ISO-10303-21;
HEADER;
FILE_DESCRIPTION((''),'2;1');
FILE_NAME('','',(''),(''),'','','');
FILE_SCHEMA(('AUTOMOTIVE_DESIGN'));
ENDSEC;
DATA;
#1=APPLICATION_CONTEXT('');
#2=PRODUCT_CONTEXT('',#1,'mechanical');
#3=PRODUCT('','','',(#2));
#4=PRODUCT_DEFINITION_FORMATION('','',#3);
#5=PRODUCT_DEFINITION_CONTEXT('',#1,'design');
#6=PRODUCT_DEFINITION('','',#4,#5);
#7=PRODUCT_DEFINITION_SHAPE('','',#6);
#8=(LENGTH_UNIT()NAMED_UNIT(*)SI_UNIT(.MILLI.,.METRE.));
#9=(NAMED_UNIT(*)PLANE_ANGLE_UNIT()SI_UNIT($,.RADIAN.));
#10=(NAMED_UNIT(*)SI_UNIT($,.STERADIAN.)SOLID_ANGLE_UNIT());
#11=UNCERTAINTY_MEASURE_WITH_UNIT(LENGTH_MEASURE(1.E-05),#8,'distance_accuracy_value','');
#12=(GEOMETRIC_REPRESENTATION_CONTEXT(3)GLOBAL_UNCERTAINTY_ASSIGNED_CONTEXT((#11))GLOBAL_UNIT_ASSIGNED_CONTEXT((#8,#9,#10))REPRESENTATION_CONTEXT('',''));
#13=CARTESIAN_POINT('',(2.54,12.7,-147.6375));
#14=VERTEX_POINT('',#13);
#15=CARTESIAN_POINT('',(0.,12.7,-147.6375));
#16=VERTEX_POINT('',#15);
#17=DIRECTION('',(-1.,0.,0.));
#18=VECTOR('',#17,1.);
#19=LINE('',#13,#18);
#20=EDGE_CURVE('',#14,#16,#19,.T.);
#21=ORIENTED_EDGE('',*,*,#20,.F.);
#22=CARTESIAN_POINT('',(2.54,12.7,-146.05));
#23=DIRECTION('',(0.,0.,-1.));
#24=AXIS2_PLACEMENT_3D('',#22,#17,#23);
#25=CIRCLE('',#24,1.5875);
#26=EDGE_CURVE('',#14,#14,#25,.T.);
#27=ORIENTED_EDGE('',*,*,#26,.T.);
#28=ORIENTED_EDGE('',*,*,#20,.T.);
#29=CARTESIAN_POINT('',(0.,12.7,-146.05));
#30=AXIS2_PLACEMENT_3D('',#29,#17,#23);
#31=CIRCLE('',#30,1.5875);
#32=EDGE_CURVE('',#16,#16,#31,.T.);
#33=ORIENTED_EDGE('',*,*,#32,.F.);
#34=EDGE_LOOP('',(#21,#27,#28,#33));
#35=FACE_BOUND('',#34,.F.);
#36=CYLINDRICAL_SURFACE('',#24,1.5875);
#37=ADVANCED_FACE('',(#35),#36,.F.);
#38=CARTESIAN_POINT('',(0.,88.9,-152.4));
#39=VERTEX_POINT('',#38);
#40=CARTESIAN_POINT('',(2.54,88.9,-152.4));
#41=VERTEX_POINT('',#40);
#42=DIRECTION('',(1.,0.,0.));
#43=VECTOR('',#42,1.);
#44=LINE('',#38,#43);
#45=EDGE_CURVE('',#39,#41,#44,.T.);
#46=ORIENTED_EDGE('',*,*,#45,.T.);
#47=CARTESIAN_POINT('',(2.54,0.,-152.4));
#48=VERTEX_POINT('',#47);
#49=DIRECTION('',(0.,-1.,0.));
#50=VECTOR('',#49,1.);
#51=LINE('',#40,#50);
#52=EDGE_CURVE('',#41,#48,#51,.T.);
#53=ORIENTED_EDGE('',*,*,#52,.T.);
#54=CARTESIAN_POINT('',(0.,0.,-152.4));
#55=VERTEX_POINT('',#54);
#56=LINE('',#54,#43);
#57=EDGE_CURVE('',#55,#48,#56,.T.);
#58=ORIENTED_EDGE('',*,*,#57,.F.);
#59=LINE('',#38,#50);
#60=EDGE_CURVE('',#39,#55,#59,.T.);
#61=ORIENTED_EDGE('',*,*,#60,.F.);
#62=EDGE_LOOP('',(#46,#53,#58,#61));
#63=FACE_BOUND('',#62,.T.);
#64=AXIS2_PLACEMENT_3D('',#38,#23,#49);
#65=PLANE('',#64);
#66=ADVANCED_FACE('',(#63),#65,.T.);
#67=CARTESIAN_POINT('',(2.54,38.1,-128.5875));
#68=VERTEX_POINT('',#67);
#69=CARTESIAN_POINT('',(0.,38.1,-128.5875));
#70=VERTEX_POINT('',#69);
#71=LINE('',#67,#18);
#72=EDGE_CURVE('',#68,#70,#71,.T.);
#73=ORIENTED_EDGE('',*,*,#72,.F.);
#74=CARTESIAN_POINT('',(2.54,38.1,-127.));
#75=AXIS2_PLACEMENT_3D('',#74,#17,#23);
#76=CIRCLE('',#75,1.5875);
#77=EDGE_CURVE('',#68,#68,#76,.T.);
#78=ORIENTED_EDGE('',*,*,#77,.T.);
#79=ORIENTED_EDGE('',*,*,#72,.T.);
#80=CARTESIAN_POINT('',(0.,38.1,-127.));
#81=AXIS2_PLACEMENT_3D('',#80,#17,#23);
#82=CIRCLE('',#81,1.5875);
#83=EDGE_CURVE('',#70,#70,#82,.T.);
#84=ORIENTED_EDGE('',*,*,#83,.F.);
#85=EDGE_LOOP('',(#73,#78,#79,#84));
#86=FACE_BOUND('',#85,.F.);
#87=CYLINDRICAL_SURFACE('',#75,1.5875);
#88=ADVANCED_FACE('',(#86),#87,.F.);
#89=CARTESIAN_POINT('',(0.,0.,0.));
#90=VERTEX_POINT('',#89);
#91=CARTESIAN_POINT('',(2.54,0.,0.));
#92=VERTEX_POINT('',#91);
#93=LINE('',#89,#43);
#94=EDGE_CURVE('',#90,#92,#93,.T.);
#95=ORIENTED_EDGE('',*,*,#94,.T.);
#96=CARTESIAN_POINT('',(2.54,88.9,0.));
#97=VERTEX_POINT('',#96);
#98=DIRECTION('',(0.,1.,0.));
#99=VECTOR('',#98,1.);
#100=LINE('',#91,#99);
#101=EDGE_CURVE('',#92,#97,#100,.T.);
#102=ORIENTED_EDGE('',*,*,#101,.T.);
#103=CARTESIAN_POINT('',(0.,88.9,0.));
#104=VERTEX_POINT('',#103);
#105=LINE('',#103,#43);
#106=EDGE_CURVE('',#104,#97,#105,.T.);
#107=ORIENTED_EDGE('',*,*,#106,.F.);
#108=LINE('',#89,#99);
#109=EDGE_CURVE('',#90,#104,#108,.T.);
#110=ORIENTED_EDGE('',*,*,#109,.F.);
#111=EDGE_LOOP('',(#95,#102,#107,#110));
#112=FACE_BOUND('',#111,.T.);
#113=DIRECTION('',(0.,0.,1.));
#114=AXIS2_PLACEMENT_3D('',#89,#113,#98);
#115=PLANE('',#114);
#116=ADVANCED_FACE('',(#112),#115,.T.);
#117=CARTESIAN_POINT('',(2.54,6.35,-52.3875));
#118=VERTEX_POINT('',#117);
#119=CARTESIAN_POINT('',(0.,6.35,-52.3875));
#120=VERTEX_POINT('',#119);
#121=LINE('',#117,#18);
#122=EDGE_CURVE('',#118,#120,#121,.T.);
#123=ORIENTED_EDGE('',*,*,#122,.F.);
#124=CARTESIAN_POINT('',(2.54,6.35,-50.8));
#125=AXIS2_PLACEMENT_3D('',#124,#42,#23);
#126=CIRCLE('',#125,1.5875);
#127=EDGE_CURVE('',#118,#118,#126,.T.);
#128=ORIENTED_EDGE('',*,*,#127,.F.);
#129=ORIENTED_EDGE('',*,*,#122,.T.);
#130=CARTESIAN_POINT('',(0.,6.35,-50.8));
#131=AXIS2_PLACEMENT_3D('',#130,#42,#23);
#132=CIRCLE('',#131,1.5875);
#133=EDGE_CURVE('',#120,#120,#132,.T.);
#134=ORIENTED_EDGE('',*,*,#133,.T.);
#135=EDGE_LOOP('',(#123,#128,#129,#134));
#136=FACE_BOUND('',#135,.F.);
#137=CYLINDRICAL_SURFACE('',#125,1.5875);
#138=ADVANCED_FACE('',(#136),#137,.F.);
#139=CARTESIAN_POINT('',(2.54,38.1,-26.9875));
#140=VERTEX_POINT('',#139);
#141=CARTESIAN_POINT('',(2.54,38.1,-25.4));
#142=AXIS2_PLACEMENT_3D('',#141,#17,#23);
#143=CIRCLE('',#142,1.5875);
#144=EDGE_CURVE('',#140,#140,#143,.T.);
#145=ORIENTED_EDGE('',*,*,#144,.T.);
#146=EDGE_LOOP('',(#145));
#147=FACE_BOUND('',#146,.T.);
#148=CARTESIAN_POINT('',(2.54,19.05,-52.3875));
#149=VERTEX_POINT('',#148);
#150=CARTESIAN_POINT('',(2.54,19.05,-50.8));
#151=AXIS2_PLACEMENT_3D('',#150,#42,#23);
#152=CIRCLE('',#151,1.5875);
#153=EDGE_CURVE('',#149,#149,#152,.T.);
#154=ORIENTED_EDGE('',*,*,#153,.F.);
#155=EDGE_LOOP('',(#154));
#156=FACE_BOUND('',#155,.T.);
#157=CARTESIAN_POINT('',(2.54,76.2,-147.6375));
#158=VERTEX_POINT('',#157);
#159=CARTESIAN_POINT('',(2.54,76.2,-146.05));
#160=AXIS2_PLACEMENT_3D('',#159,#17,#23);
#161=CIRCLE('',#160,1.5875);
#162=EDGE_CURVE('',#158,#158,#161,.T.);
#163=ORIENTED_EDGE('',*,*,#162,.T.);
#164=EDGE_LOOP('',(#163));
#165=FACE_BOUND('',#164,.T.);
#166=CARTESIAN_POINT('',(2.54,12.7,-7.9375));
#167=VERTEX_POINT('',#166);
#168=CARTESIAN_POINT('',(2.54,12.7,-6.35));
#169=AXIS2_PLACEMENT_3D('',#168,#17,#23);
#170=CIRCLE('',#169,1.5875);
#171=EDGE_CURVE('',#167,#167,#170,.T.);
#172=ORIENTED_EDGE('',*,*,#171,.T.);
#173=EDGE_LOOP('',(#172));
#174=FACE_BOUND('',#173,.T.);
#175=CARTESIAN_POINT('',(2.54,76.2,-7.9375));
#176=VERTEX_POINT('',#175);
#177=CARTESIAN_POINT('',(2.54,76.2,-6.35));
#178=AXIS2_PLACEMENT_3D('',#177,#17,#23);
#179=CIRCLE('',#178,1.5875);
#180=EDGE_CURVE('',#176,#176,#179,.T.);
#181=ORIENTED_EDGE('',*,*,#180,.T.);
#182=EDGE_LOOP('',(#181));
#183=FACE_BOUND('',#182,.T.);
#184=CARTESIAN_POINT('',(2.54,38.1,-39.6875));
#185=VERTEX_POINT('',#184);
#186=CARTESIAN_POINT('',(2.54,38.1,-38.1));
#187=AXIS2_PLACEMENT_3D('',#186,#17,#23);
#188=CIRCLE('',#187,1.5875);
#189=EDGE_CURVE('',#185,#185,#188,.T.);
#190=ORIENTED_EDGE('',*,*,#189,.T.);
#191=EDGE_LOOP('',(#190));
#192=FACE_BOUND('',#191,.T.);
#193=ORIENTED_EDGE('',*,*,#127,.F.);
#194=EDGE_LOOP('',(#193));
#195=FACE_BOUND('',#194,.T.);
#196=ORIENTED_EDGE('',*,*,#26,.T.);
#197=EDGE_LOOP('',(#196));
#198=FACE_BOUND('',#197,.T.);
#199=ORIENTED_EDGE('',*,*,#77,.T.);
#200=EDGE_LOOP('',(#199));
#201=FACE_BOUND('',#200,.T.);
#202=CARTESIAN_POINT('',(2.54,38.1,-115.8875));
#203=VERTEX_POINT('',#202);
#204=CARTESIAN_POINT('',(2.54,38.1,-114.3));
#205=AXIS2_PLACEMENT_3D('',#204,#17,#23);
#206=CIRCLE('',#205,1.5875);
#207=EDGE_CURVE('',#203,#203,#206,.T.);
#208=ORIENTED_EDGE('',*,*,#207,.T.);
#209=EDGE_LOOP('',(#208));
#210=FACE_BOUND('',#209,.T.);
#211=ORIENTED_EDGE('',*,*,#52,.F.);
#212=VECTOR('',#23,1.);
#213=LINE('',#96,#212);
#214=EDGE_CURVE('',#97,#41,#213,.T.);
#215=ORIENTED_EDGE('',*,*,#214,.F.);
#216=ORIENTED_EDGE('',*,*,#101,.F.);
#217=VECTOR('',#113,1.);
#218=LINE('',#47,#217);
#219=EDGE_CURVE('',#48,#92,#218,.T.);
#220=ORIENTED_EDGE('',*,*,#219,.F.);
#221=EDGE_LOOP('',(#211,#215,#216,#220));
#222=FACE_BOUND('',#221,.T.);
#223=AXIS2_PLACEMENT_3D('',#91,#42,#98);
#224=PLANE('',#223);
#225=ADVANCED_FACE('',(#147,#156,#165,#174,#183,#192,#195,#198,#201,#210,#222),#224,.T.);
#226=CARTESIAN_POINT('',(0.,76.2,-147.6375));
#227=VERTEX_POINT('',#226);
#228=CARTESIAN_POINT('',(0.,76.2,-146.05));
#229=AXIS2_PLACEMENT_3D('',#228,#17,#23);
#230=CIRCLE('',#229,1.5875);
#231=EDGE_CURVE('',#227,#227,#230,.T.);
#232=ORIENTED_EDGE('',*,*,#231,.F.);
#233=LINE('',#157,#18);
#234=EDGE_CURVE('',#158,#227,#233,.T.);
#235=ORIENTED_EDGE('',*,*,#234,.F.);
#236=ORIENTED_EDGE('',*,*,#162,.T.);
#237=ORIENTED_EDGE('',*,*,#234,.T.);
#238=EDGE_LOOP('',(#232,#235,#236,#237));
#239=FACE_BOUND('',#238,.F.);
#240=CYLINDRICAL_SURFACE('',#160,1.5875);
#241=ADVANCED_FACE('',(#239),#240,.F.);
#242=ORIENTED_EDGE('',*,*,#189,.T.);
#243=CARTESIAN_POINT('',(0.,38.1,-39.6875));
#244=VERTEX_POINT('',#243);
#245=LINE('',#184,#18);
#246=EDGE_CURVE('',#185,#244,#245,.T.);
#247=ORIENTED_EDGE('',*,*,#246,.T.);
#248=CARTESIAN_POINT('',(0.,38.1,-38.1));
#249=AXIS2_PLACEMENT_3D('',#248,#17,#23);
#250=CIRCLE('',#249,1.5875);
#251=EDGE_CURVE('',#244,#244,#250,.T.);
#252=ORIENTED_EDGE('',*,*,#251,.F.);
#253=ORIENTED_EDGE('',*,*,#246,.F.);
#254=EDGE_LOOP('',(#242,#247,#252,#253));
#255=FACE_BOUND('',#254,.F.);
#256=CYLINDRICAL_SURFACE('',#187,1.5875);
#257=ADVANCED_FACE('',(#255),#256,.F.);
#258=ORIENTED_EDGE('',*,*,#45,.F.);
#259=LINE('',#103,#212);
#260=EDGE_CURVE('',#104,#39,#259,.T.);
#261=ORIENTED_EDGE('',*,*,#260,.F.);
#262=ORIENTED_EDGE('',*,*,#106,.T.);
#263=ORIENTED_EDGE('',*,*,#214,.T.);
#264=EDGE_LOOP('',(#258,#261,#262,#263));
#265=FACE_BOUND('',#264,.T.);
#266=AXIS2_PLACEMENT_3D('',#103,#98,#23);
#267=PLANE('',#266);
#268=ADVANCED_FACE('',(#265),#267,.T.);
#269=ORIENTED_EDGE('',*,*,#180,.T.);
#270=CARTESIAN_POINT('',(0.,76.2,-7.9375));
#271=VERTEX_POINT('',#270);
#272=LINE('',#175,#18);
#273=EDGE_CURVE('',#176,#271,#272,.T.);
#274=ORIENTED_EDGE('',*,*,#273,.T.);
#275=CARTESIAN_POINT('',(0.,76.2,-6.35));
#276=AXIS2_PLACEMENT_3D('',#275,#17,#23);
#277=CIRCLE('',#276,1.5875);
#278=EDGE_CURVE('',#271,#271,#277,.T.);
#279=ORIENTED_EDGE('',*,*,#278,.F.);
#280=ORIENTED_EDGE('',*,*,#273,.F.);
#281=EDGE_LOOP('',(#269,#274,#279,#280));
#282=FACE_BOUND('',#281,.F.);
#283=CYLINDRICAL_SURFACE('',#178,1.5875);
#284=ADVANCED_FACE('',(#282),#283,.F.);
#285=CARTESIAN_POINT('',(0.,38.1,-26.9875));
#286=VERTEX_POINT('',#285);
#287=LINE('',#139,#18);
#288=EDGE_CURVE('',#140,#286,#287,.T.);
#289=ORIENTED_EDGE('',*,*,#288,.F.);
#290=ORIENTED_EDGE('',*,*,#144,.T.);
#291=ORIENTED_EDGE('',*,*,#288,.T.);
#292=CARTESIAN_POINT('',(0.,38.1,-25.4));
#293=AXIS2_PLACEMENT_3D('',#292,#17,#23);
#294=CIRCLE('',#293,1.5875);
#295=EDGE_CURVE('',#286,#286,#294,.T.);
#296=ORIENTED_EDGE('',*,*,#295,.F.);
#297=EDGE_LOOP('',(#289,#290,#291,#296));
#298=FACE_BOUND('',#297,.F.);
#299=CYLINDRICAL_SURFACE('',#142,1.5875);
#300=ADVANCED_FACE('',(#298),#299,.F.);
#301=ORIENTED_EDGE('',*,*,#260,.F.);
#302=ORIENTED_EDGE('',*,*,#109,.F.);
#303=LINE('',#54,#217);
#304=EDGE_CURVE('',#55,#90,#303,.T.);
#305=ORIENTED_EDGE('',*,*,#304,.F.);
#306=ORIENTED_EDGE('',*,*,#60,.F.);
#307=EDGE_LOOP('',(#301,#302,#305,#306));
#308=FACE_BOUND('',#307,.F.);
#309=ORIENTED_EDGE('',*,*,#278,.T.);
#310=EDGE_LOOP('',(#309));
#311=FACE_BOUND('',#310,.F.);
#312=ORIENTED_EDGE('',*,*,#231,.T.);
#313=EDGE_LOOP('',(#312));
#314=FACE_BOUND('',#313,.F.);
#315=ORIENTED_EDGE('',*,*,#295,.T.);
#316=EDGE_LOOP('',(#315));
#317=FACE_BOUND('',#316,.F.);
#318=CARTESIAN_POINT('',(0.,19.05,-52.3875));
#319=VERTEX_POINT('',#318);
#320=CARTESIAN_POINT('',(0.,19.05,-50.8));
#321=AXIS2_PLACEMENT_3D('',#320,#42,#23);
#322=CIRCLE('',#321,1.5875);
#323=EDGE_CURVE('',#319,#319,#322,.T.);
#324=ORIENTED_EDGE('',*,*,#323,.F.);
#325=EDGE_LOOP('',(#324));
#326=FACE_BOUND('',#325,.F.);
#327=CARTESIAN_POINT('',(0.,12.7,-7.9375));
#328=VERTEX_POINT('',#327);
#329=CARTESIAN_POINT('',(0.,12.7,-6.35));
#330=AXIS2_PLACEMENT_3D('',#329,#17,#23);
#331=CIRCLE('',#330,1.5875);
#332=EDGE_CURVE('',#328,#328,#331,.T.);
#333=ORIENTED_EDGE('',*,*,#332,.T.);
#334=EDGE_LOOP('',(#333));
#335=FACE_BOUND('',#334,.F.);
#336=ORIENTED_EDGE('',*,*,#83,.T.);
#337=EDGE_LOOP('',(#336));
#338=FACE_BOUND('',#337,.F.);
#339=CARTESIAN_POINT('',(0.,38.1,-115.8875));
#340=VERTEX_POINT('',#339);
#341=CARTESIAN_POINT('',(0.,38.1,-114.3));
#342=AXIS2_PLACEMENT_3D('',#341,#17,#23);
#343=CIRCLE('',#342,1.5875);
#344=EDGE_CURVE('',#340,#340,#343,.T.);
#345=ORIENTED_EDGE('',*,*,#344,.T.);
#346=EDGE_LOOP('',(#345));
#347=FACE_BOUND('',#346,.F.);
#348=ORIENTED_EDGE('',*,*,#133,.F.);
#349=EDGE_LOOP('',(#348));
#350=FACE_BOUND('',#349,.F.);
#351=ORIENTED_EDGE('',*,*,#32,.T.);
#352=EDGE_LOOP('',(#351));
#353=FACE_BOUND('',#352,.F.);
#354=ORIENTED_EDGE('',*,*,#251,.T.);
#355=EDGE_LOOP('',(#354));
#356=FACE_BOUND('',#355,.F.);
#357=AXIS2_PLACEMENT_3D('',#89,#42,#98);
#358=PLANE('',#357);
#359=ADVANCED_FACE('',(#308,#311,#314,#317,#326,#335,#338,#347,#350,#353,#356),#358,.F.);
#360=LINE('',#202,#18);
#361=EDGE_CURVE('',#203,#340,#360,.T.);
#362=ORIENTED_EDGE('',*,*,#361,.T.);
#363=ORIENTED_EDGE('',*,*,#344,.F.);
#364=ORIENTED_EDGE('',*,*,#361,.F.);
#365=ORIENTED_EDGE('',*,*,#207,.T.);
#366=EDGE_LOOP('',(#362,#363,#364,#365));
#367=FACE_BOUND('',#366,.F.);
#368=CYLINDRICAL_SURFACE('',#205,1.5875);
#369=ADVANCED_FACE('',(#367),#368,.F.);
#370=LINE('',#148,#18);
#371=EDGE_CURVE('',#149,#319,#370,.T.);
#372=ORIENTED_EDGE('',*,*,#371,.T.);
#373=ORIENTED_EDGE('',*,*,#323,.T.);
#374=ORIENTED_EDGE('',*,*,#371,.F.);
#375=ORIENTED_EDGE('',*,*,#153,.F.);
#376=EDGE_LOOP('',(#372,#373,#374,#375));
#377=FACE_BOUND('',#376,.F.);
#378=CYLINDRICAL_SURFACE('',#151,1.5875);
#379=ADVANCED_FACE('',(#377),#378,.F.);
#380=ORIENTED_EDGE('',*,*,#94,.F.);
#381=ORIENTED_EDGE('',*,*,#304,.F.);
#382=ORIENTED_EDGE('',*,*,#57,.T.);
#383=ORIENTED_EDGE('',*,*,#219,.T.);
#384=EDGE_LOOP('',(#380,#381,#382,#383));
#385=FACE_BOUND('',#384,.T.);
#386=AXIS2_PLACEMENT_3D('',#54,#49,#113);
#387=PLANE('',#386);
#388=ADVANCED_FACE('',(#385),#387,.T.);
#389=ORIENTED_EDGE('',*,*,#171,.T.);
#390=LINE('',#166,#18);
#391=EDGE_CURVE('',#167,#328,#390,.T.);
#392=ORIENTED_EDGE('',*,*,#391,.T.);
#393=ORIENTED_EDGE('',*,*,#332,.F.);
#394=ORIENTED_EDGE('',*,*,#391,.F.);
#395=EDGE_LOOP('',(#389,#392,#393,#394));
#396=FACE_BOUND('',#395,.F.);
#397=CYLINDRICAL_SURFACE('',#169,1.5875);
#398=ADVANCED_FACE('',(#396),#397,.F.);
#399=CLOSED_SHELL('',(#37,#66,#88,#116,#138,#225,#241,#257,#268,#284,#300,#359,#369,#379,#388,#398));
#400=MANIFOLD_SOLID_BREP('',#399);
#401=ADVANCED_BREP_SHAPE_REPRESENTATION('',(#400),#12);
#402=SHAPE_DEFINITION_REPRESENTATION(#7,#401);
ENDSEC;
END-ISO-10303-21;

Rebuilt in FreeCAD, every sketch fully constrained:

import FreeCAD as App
import Part
import Sketcher
from FreeCAD import Vector
Q = App.Units.Quantity

doc = App.newDocument("Part")
params = doc.addObject("Spreadsheet::Sheet", "Params")
for row, (alias, value) in enumerate([
    ("sketch1_height", "6 in"),
    ("sketch1_width", "3.5 in"),
    ("pad1_length", "0.1 in"),
    ("sketch2_diameter", "0.125 in"),
    ("hole_diameter", "0.125 in"),
    ("hole_depth", "1 in"),
    ("sketch3_diameter", "0.125 in"),
    ("hole2_diameter", "0.125 in"),
    ("hole2_depth", "1 in"),
    ("sketch4_diameter", "0.125 in"),
    ("pocket1_length", "1 in"),
], start=1):
    params.set(f"A{row}", alias)
    params.set(f"B{row}", "=" + value)
    params.setAlias(f"B{row}", alias)

body = doc.addObject("PartDesign::Body", "Body")

# Sketch on YZ plane
sketch1 = doc.addObject("Sketcher::SketchObject", "Sketch")
body.addObject(sketch1)
sketch1.AttachmentSupport = (doc.YZ_Plane, [""])
sketch1.MapMode = "FlatFace"
sketch1.addGeometry(Part.LineSegment(Vector(89, 0, 0), Vector(0, 0, 0)), False)
sketch1.addGeometry(Part.LineSegment(Vector(0, 0, 0), Vector(0, -152, 0)), False)
sketch1.addGeometry(Part.LineSegment(Vector(0, -152, 0), Vector(89, -152, 0)), False)
sketch1.addGeometry(Part.LineSegment(Vector(89, -152, 0), Vector(89, 0, 0)), False)
sketch1.addConstraint(Sketcher.Constraint("Coincident", 0, 2, 1, 1))
sketch1.addConstraint(Sketcher.Constraint("Coincident", 1, 2, 2, 1))
sketch1.addConstraint(Sketcher.Constraint("Coincident", 2, 2, 3, 1))
sketch1.addConstraint(Sketcher.Constraint("Coincident", 3, 2, 0, 1))
sketch1.addConstraint(Sketcher.Constraint("Horizontal", 0))
sketch1.addConstraint(Sketcher.Constraint("Vertical", 1))
sketch1.addConstraint(Sketcher.Constraint("Horizontal", 2))
sketch1.addConstraint(Sketcher.Constraint("Vertical", 3))
sketch1.addConstraint(Sketcher.Constraint("Coincident", 0, 2, -1, 1))
sketch1.addConstraint(Sketcher.Constraint("DistanceY", 1, 2, 1, 1, Q("6 in")))
sketch1.addConstraint(Sketcher.Constraint("DistanceX", 0, 2, 0, 1, Q("3.5 in")))
sketch1.setExpression("Constraints[9]", "Params.sketch1_height")
sketch1.setExpression("Constraints[10]", "Params.sketch1_width")
pad1 = doc.addObject("PartDesign::Pad", "Pad")
body.addObject(pad1)
pad1.Profile = sketch1
pad1.setExpression("Length", "Params.pad1_length")

# Sketch on YZ plane
sketch2 = doc.addObject("Sketcher::SketchObject", "Sketch001")
body.addObject(sketch2)
sketch2.AttachmentSupport = (doc.YZ_Plane, [""])
sketch2.MapMode = "FlatFace"
sketch2.AttachmentOffset = App.Placement(Vector(0, 0, 0.1 * 25.4), App.Rotation())
sketch2.addGeometry(Part.Circle(Vector(76.2, -6.3, 0), Vector(0, 0, 1), 1.6), False)
sketch2.addGeometry(Part.Circle(Vector(12.7, -6.3, 0), Vector(0, 0, 1), 1.6), False)
sketch2.addGeometry(Part.Circle(Vector(12.7, -146.1, 0), Vector(0, 0, 1), 1.6), False)
sketch2.addGeometry(Part.Circle(Vector(76.2, -146.1, 0), Vector(0, 0, 1), 1.6), False)
sketch2.addConstraint(Sketcher.Constraint("Equal", 0, 1))
sketch2.addConstraint(Sketcher.Constraint("Equal", 1, 2))
sketch2.addConstraint(Sketcher.Constraint("Equal", 2, 3))
sketch2.addConstraint(Sketcher.Constraint("Horizontal", 0, 3, 1, 3))
sketch2.addConstraint(Sketcher.Constraint("Horizontal", 2, 3, 3, 3))
sketch2.addConstraint(Sketcher.Constraint("Vertical", 1, 3, 2, 3))
sketch2.addConstraint(Sketcher.Constraint("Vertical", 0, 3, 3, 3))
sketch2.addConstraint(Sketcher.Constraint("Diameter", 0, Q("0.125 in")))
sketch2.addConstraint(Sketcher.Constraint("DistanceX", -1, 1, 0, 3, Q("3 in")))
sketch2.addConstraint(Sketcher.Constraint("DistanceX", -1, 1, 1, 3, Q("0.5 in")))
sketch2.addConstraint(Sketcher.Constraint("DistanceY", 2, 3, 1, 3, Q("5.5 in")))
sketch2.addConstraint(Sketcher.Constraint("DistanceY", 0, 3, -1, 1, Q("0.25 in")))
sketch2.setExpression("Constraints[7]", "Params.sketch2_diameter")
doc.recompute()
hole = doc.addObject("PartDesign::Hole", "Hole")
body.addObject(hole)
hole.Profile = sketch2
hole.ThreadType = "None"
hole.setExpression("Diameter", "Params.hole_diameter")
hole.DepthType = "Dimension"
hole.setExpression("Depth", "Params.hole_depth")
hole.DrillPoint = "Angled"
hole.DrillPointAngle = 118

# Sketch on YZ plane
sketch3 = doc.addObject("Sketcher::SketchObject", "Sketch002")
body.addObject(sketch3)
sketch3.AttachmentSupport = (doc.YZ_Plane, [""])
sketch3.MapMode = "FlatFace"
sketch3.AttachmentOffset = App.Placement(Vector(0, 0, 0.1 * 25.4), App.Rotation())
sketch3.addGeometry(Part.Circle(Vector(38.1, -38.1, 0), Vector(0, 0, 1), 1.6), False)
sketch3.addGeometry(Part.Circle(Vector(38.1, -127, 0), Vector(0, 0, 1), 1.6), False)
sketch3.addGeometry(Part.Circle(Vector(38.1, -114.3, 0), Vector(0, 0, 1), 1.6), False)
sketch3.addGeometry(Part.Circle(Vector(38.1, -25.4, 0), Vector(0, 0, 1), 1.6), False)
sketch3.addConstraint(Sketcher.Constraint("Equal", 0, 1))
sketch3.addConstraint(Sketcher.Constraint("Equal", 1, 2))
sketch3.addConstraint(Sketcher.Constraint("Equal", 2, 3))
sketch3.addConstraint(Sketcher.Constraint("Vertical", 0, 3, 1, 3))
sketch3.addConstraint(Sketcher.Constraint("Vertical", 1, 3, 2, 3))
sketch3.addConstraint(Sketcher.Constraint("Vertical", 2, 3, 3, 3))
sketch3.addConstraint(Sketcher.Constraint("Diameter", 0, Q("0.125 in")))
sketch3.addConstraint(Sketcher.Constraint("DistanceY", 1, 3, -1, 1, Q("5 in")))
sketch3.addConstraint(Sketcher.Constraint("DistanceY", 3, 3, -1, 1, Q("1 in")))
sketch3.addConstraint(Sketcher.Constraint("DistanceY", 2, 3, 0, 3, Q("3 in")))
sketch3.addConstraint(Sketcher.Constraint("DistanceX", -1, 1, 0, 3, Q("1.5 in")))
sketch3.addConstraint(Sketcher.Constraint("DistanceY", 0, 3, -1, 1, Q("1.5 in")))
sketch3.setExpression("Constraints[6]", "Params.sketch3_diameter")
doc.recompute()
hole2 = doc.addObject("PartDesign::Hole", "Hole001")
body.addObject(hole2)
hole2.Profile = sketch3
hole2.ThreadType = "None"
hole2.setExpression("Diameter", "Params.hole2_diameter")
hole2.DepthType = "Dimension"
hole2.setExpression("Depth", "Params.hole2_depth")
hole2.DrillPoint = "Angled"
hole2.DrillPointAngle = 118

# Sketch on YZ plane
sketch4 = doc.addObject("Sketcher::SketchObject", "Sketch003")
body.addObject(sketch4)
sketch4.AttachmentSupport = (doc.YZ_Plane, [""])
sketch4.MapMode = "FlatFace"
sketch4.AttachmentOffset = App.Placement(Vector(0, 0, 0.1 * 25.4), App.Rotation())
sketch4.addGeometry(Part.Circle(Vector(19.1, -50.8, 0), Vector(0, 0, 1), 1.6), False)
sketch4.addGeometry(Part.Circle(Vector(6.3, -50.8, 0), Vector(0, 0, 1), 1.6), False)
sketch4.addConstraint(Sketcher.Constraint("Equal", 0, 1))
sketch4.addConstraint(Sketcher.Constraint("Horizontal", 0, 3, 1, 3))
sketch4.addConstraint(Sketcher.Constraint("Diameter", 0, Q("0.125 in")))
sketch4.addConstraint(Sketcher.Constraint("DistanceX", 1, 3, 0, 3, Q("0.5 in")))
sketch4.addConstraint(Sketcher.Constraint("DistanceX", -1, 1, 1, 3, Q("0.25 in")))
sketch4.addConstraint(Sketcher.Constraint("DistanceY", 0, 3, -1, 1, Q("2 in")))
sketch4.setExpression("Constraints[2]", "Params.sketch4_diameter")
pocket1 = doc.addObject("PartDesign::Pocket", "Pocket")
body.addObject(pocket1)
pocket1.Profile = sketch4
pocket1.setExpression("Length", "Params.pocket1_length")

doc.recompute()
